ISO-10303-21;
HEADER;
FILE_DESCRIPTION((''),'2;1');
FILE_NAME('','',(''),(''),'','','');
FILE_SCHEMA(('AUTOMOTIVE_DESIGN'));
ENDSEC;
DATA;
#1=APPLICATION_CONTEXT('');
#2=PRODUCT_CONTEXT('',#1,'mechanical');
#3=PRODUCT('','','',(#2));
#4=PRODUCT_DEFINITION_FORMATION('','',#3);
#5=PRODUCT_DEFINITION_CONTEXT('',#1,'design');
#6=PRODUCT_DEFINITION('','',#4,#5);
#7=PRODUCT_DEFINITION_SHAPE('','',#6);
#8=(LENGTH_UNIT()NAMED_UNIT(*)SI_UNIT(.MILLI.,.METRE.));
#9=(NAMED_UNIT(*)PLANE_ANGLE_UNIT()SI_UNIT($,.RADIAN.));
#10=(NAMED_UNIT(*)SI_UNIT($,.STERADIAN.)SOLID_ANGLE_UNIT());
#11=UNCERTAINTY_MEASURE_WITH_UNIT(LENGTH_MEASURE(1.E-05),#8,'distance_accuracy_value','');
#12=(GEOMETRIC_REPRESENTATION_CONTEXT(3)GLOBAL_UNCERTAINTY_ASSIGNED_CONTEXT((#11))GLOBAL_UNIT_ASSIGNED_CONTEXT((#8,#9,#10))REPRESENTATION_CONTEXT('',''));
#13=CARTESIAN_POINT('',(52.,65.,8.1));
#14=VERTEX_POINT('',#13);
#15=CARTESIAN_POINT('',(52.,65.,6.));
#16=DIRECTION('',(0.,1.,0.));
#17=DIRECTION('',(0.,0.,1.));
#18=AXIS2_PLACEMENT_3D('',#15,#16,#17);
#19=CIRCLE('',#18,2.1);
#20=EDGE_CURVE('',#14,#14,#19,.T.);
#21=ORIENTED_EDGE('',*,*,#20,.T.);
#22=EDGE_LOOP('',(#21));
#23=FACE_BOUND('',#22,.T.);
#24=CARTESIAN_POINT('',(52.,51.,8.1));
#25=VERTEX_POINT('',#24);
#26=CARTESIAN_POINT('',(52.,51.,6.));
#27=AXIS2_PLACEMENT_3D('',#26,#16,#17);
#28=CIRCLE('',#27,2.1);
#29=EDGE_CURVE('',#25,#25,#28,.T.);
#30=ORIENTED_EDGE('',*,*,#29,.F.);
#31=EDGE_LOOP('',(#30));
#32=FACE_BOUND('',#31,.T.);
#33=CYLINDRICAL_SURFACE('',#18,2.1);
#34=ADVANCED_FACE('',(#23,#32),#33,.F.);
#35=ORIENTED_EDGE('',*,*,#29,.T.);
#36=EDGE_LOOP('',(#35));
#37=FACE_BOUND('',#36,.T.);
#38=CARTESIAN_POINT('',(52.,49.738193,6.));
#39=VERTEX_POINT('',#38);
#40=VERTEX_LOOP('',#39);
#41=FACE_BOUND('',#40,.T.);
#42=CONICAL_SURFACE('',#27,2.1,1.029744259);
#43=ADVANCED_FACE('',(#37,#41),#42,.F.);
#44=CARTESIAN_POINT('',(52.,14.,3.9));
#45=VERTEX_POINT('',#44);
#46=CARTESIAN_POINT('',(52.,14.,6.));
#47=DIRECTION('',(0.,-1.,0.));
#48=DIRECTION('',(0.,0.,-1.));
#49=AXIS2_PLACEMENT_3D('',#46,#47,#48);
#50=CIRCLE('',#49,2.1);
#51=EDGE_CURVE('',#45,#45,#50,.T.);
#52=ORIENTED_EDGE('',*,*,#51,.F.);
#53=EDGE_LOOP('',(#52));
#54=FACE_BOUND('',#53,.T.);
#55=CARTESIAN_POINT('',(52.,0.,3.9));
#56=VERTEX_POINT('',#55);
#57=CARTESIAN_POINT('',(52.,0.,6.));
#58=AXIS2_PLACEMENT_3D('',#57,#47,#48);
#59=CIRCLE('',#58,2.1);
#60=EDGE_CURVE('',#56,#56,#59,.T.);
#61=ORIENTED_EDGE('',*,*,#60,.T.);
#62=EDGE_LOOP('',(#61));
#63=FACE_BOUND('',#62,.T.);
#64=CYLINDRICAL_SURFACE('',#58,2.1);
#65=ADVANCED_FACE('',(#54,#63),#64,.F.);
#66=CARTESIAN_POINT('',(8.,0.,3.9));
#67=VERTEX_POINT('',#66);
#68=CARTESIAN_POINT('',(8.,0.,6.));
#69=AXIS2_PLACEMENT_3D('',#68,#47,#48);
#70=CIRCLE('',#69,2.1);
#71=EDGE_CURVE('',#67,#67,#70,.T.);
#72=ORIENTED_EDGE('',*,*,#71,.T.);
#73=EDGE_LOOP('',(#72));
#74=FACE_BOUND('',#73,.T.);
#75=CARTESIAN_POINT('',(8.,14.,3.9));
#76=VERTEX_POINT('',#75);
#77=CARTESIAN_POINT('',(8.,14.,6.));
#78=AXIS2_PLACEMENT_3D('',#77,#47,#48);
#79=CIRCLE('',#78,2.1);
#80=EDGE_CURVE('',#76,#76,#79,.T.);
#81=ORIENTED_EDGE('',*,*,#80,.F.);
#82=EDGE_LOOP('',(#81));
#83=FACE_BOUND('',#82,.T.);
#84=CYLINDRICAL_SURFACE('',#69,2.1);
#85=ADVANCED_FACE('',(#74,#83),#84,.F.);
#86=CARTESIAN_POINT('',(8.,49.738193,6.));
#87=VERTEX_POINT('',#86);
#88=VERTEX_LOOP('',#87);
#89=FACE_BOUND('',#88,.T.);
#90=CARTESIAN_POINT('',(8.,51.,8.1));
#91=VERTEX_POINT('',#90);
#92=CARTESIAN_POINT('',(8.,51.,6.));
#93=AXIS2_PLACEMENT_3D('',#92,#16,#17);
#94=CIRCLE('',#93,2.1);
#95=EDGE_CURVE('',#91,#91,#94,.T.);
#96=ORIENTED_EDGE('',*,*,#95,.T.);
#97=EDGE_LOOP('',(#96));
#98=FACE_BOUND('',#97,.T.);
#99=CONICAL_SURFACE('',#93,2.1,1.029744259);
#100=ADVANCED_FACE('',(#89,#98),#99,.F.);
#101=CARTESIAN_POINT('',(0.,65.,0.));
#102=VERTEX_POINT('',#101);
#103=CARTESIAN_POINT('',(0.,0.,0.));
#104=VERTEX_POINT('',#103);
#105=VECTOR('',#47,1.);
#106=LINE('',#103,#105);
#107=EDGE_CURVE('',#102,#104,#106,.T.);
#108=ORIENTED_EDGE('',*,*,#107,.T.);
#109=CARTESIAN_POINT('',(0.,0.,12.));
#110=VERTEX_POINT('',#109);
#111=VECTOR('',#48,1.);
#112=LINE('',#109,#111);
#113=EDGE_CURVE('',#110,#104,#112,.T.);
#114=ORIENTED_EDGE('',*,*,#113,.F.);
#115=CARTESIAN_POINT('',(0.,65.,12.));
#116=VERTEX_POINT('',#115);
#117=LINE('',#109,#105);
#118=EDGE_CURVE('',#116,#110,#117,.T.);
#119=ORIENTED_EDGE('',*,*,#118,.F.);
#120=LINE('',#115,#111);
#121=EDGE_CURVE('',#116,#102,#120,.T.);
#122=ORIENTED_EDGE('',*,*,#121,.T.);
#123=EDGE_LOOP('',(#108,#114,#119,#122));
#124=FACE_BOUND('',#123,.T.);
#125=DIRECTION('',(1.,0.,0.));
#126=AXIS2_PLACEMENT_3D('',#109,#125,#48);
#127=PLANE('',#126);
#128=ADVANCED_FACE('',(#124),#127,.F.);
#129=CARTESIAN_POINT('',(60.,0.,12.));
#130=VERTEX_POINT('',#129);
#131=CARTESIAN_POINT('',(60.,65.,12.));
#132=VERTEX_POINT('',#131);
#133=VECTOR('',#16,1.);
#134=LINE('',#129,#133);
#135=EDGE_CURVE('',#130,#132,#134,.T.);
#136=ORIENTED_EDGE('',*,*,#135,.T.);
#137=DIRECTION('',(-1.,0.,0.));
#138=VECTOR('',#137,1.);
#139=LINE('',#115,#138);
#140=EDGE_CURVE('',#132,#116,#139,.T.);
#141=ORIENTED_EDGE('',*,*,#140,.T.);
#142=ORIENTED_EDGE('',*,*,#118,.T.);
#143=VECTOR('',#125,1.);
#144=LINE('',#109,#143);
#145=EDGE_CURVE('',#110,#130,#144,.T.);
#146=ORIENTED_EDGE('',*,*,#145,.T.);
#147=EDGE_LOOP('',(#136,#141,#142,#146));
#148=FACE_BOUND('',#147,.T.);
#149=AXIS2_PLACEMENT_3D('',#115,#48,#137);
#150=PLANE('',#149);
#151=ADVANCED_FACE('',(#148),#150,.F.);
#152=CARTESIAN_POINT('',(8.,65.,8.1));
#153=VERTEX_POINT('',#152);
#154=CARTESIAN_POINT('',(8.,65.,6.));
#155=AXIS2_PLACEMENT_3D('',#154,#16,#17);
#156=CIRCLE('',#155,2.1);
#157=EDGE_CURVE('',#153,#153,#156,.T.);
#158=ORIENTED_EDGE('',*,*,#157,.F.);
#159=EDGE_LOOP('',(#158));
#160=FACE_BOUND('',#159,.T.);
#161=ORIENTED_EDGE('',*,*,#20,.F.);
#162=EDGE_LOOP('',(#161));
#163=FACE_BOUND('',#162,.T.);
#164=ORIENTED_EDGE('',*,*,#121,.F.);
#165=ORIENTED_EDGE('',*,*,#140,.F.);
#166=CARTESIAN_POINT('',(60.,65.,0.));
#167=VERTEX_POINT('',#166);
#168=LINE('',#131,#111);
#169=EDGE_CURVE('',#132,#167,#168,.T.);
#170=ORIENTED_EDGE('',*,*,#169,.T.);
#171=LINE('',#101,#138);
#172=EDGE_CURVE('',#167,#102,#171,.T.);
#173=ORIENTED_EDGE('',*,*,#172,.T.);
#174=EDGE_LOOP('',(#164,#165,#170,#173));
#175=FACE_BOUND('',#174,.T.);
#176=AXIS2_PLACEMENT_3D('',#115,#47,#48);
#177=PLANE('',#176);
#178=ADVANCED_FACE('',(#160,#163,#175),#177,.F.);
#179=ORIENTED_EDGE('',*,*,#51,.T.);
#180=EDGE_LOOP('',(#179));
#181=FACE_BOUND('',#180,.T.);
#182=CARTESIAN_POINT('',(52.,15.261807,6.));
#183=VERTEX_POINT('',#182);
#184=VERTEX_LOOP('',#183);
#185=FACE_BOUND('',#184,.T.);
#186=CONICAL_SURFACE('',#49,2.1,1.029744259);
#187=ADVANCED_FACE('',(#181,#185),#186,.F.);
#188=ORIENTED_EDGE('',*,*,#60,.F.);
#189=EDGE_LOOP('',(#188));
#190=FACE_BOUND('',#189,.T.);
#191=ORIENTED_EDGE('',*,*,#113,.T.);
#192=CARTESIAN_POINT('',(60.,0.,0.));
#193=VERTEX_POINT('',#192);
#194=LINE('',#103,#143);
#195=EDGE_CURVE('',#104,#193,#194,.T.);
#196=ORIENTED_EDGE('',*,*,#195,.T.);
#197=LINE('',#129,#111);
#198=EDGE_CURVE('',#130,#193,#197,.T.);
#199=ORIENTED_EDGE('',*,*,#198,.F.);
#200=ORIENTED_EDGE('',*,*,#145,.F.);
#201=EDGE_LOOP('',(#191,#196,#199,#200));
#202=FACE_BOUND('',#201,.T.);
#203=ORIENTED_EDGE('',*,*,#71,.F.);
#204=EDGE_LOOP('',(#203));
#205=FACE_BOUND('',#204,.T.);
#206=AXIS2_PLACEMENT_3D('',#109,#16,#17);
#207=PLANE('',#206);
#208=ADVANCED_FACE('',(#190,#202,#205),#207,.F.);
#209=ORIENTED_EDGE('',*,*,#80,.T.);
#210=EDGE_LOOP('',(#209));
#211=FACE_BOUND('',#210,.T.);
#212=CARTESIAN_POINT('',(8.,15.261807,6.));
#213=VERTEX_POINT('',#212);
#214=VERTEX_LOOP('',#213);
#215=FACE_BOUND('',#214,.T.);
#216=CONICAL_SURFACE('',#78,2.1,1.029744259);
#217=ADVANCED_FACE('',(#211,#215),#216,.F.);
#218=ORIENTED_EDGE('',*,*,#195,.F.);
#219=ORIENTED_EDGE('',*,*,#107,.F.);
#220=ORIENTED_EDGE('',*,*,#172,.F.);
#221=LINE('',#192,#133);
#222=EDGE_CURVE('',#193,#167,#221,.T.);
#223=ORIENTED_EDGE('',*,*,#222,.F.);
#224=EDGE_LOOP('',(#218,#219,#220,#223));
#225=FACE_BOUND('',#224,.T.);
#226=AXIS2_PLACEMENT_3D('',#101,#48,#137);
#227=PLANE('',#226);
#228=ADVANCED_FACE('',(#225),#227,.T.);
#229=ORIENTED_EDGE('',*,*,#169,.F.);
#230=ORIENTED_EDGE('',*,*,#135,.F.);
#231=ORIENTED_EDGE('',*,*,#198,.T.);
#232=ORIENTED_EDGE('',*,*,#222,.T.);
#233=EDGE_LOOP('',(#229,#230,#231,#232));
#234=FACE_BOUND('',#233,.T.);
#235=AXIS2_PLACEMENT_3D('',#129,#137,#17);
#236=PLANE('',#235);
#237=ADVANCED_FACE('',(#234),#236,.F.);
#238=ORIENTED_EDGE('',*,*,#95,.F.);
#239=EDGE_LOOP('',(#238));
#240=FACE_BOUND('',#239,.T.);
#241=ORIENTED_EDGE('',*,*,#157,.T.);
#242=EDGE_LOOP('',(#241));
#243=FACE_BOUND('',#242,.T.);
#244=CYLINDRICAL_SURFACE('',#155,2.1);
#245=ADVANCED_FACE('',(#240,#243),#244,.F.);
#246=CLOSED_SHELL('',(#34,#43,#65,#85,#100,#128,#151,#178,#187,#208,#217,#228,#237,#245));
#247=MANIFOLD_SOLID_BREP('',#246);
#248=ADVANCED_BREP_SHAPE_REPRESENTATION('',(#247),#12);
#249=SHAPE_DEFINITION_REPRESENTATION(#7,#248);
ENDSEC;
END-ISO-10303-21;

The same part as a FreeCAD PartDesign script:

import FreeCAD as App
import Part
import Sketcher

V = App.Vector
Q = App.Units.Quantity


def add_polygon(sketch, points):
    """Adds a closed chain of lines whose ends are joined by coincident constraints."""
    first, n = sketch.GeometryCount, len(points)
    for a, b in zip(points, points[1:] + points[:1]):
        sketch.addGeometry(Part.LineSegment(App.Vector(*a, 0), App.Vector(*b, 0)), False)
    for i in range(n):
        sketch.addConstraint(Sketcher.Constraint("Coincident", first + i, 2, first + (i + 1) % n, 1))

doc = App.newDocument("Part")
params = doc.addObject("Spreadsheet::Sheet", "Params")
for row, (alias, value) in enumerate([
    ("sketch1_width", "60 mm"),
    ("sketch1_height", "65 mm"),
    ("pad1_length", "12 mm"),
    ("sketch2_diameter", "4.2 mm"),
    ("hole_diameter", "4.2 mm"),
    ("hole_depth", "14 mm"),
    ("sketch3_diameter", "4.2 mm"),
    ("hole2_diameter", "4.2 mm"),
    ("hole2_depth", "14 mm"),
    ("sketch4_diameter", "4.2 mm"),
    ("hole3_diameter", "4.2 mm"),
    ("hole3_depth", "14 mm"),
    ("sketch5_diameter", "4.2 mm"),
    ("hole4_diameter", "4.2 mm"),
    ("hole4_depth", "14 mm"),
], start=1):
    params.set(f"A{row}", alias)
    params.set(f"B{row}", "=" + value)
    params.setAlias(f"B{row}", alias)

body = doc.addObject("PartDesign::Body", "Body")

# Sketch on XY plane
sketch1 = body.newObject("Sketcher::SketchObject", "Sketch")
sketch1.AttachmentSupport = (doc.getObject("XY_Plane"), [""])
sketch1.MapMode = "FlatFace"
add_polygon(sketch1, [(0, 65), (0, 0), (60, 0), (60, 65)])  # lines 0-3
sketch1.addConstraint(Sketcher.Constraint("Vertical", 0))
sketch1.addConstraint(Sketcher.Constraint("Horizontal", 1))
sketch1.addConstraint(Sketcher.Constraint("Vertical", 2))
sketch1.addConstraint(Sketcher.Constraint("Horizontal", 3))
sketch1.addConstraint(Sketcher.Constraint("Coincident", 0, 2, -1, 1))
sketch1.addConstraint(Sketcher.Constraint("DistanceX", 1, 1, 1, 2, Q("60 mm")))
sketch1.addConstraint(Sketcher.Constraint("DistanceY", 0, 2, 0, 1, Q("65 mm")))
sketch1.setExpression("Constraints[9]", "Params.sketch1_width")
sketch1.setExpression("Constraints[10]", "Params.sketch1_height")
pad1 = body.newObject("PartDesign::Pad", "Pad")
pad1.Profile = sketch1
pad1.setExpression("Length", "Params.pad1_length")

# Sketch on XZ plane
sketch2 = body.newObject("Sketcher::SketchObject", "Sketch001")
sketch2.AttachmentSupport = (doc.getObject("XZ_Plane"), [""])
sketch2.MapMode = "FlatFace"
sketch2.AttachmentOffset = App.Placement(V(0, 0, -65), App.Rotation())
sketch2.addGeometry(Part.Circle(V(8, 6, 0), V(0, 0, 1), 2.1), False)
sketch2.addConstraint(Sketcher.Constraint("Diameter", 0, Q("4.2 mm")))
sketch2.addConstraint(Sketcher.Constraint("DistanceX", -1, 1, 0, 3, Q("8 mm")))
sketch2.addConstraint(Sketcher.Constraint("DistanceY", -1, 1, 0, 3, Q("6 mm")))
sketch2.setExpression("Constraints[0]", "Params.sketch2_diameter")
doc.recompute()
hole = body.newObject("PartDesign::Hole", "Hole")
hole.Profile = sketch2
hole.ThreadType = "None"
hole.setExpression("Diameter", "Params.hole_diameter")
hole.DepthType = "Dimension"
hole.setExpression("Depth", "Params.hole_depth")
hole.DrillPoint = "Angled"
hole.DrillPointAngle = 118
hole.Reversed = True

# Sketch on XZ plane
sketch3 = body.newObject("Sketcher::SketchObject", "Sketch002")
sketch3.AttachmentSupport = (doc.getObject("XZ_Plane"), [""])
sketch3.MapMode = "FlatFace"
sketch3.AttachmentOffset = App.Placement(V(0, 0, -65), App.Rotation())
sketch3.addGeometry(Part.Circle(V(52, 6, 0), V(0, 0, 1), 2.1), False)
sketch3.addConstraint(Sketcher.Constraint("Diameter", 0, Q("4.2 mm")))
sketch3.addConstraint(Sketcher.Constraint("DistanceX", -1, 1, 0, 3, Q("52 mm")))
sketch3.addConstraint(Sketcher.Constraint("DistanceY", -1, 1, 0, 3, Q("6 mm")))
sketch3.setExpression("Constraints[0]", "Params.sketch3_diameter")
doc.recompute()
hole2 = body.newObject("PartDesign::Hole", "Hole001")
hole2.Profile = sketch3
hole2.ThreadType = "None"
hole2.setExpression("Diameter", "Params.hole2_diameter")
hole2.DepthType = "Dimension"
hole2.setExpression("Depth", "Params.hole2_depth")
hole2.DrillPoint = "Angled"
hole2.DrillPointAngle = 118
hole2.Reversed = True

# Sketch on XZ plane
sketch4 = body.newObject("Sketcher::SketchObject", "Sketch003")
sketch4.AttachmentSupport = (doc.getObject("XZ_Plane"), [""])
sketch4.MapMode = "FlatFace"
sketch4.addGeometry(Part.Circle(V(8, 6, 0), V(0, 0, 1), 2.1), False)
sketch4.addConstraint(Sketcher.Constraint("Diameter", 0, Q("4.2 mm")))
sketch4.addConstraint(Sketcher.Constraint("DistanceX", -1, 1, 0, 3, Q("8 mm")))
sketch4.addConstraint(Sketcher.Constraint("DistanceY", -1, 1, 0, 3, Q("6 mm")))
sketch4.setExpression("Constraints[0]", "Params.sketch4_diameter")
doc.recompute()
hole3 = body.newObject("PartDesign::Hole", "Hole002")
hole3.Profile = sketch4
hole3.ThreadType = "None"
hole3.setExpression("Diameter", "Params.hole3_diameter")
hole3.DepthType = "Dimension"
hole3.setExpression("Depth", "Params.hole3_depth")
hole3.DrillPoint = "Angled"
hole3.DrillPointAngle = 118

# Sketch on XZ plane
sketch5 = body.newObject("Sketcher::SketchObject", "Sketch004")
sketch5.AttachmentSupport = (doc.getObject("XZ_Plane"), [""])
sketch5.MapMode = "FlatFace"
sketch5.addGeometry(Part.Circle(V(52, 6, 0), V(0, 0, 1), 2.1), False)
sketch5.addConstraint(Sketcher.Constraint("Diameter", 0, Q("4.2 mm")))
sketch5.addConstraint(Sketcher.Constraint("DistanceX", -1, 1, 0, 3, Q("52 mm")))
sketch5.addConstraint(Sketcher.Constraint("DistanceY", -1, 1, 0, 3, Q("6 mm")))
sketch5.setExpression("Constraints[0]", "Params.sketch5_diameter")
doc.recompute()
hole4 = body.newObject("PartDesign::Hole", "Hole003")
hole4.Profile = sketch5
hole4.ThreadType = "None"
hole4.setExpression("Diameter", "Params.hole4_diameter")
hole4.DepthType = "Dimension"
hole4.setExpression("Depth", "Params.hole4_depth")
hole4.DrillPoint = "Angled"
hole4.DrillPointAngle = 118

doc.recompute()
